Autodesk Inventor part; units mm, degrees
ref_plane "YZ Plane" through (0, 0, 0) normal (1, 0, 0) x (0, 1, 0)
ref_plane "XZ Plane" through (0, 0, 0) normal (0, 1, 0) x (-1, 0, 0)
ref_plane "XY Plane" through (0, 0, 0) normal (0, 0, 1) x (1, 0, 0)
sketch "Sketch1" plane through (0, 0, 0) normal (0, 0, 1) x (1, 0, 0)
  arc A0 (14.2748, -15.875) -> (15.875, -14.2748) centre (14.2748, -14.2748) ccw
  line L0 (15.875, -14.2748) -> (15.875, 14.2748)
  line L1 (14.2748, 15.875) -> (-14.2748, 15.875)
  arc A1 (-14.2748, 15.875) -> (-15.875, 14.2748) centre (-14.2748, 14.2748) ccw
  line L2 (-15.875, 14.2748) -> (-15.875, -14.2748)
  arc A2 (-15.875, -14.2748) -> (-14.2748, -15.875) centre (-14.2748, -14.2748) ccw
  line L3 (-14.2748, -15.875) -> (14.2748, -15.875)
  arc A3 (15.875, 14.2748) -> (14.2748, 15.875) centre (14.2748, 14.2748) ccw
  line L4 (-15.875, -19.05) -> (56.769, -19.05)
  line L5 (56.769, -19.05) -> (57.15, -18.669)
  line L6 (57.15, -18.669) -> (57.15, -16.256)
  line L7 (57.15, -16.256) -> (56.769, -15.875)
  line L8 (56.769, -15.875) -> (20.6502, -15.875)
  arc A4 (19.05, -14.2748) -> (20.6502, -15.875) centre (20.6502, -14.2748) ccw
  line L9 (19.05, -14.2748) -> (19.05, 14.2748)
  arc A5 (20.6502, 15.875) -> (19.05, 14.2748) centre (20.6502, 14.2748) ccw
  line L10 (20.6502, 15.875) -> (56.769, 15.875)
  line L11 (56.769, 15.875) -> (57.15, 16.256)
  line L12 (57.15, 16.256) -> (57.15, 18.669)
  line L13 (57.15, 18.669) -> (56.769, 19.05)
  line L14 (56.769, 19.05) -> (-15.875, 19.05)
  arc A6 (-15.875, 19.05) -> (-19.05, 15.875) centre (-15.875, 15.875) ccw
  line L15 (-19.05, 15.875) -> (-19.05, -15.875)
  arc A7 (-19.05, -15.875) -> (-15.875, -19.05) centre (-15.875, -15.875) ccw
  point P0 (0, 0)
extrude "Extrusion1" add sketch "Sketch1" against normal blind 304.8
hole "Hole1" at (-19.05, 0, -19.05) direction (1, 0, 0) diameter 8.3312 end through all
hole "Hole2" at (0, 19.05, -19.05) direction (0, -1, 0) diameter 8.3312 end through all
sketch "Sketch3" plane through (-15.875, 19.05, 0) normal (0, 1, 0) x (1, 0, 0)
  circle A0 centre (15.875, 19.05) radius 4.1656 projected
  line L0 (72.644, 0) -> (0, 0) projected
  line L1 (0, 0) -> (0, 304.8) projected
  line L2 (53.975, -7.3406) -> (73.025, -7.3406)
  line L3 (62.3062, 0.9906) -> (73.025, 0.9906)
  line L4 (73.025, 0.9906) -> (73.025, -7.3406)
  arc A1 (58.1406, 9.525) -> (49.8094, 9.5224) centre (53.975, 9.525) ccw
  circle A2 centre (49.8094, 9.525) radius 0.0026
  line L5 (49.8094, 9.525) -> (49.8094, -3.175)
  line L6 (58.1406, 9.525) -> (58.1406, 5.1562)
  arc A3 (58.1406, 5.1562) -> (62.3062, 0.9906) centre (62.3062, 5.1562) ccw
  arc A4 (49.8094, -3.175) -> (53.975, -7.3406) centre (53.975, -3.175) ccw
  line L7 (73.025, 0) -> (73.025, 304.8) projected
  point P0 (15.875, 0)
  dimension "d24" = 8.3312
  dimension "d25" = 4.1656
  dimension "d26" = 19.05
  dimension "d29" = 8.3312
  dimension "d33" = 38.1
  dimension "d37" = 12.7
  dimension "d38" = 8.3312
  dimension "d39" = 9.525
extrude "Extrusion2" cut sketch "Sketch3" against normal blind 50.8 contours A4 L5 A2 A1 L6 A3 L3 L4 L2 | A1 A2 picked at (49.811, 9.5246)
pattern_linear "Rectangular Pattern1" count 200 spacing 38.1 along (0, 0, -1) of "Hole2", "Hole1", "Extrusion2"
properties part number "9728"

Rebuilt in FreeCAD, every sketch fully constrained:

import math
import FreeCAD as App
import Part
import Sketcher

V = App.Vector
Q = App.Units.Quantity

doc = App.newDocument("Part")
body = doc.addObject("PartDesign::Body", "Body")

# Sketch on XY plane
sketch1 = body.newObject("Sketcher::SketchObject", "Sketch")
sketch1.AttachmentSupport = (doc.getObject("XY_Plane"), [""])
sketch1.MapMode = "FlatFace"
sketch1.addGeometry([
    Part.ArcOfCircle(Part.Circle(V(-15.9, -15.9, 0), V(0, 0, 1), 3.2), math.radians(180), math.radians(270)),  # 0
    Part.LineSegment(V(-15.9, -19.1, 0), V(56.8, -19.1, 0)),  # 1
    Part.LineSegment(V(56.8, -19.1, 0), V(57.1, -18.7, 0)),  # 2
    Part.LineSegment(V(57.1, -18.7, 0), V(57.1, -16.3, 0)),  # 3
    Part.LineSegment(V(57.1, -16.3, 0), V(56.8, -15.9, 0)),  # 4
    Part.LineSegment(V(56.8, -15.9, 0), V(20.7, -15.9, 0)),  # 5
    Part.ArcOfCircle(Part.Circle(V(20.7, -14.3, 0), V(0, 0, 1), 1.6), math.radians(180), math.radians(270)),  # 6
    Part.LineSegment(V(19.1, -14.3, 0), V(19.1, 14.3, 0)),  # 7
    Part.ArcOfCircle(Part.Circle(V(20.7, 14.3, 0), V(0, 0, 1), 1.6), math.radians(90), math.radians(180)),  # 8
    Part.LineSegment(V(20.7, 15.9, 0), V(56.8, 15.9, 0)),  # 9
    Part.LineSegment(V(56.8, 15.9, 0), V(57.1, 16.3, 0)),  # 10
    Part.LineSegment(V(57.1, 16.3, 0), V(57.1, 18.7, 0)),  # 11
    Part.LineSegment(V(57.1, 18.7, 0), V(56.8, 19.1, 0)),  # 12
    Part.LineSegment(V(56.8, 19.1, 0), V(-15.9, 19.1, 0)),  # 13
    Part.ArcOfCircle(Part.Circle(V(-15.9, 15.9, 0), V(0, 0, 1), 3.2), math.radians(90), math.radians(180)),  # 14
    Part.LineSegment(V(-19.1, 15.9, 0), V(-19.1, -15.9, 0)),  # 15
    Part.ArcOfCircle(Part.Circle(V(14.3, -14.3, 0), V(0, 0, 1), 1.6), math.radians(-90), math.radians(0)),  # 16
    Part.LineSegment(V(14.3, -15.9, 0), V(-14.3, -15.9, 0)),  # 17
    Part.ArcOfCircle(Part.Circle(V(-14.3, -14.3, 0), V(0, 0, 1), 1.6), math.radians(180), math.radians(270)),  # 18
    Part.LineSegment(V(-15.9, -14.3, 0), V(-15.9, 14.3, 0)),  # 19
    Part.ArcOfCircle(Part.Circle(V(-14.3, 14.3, 0), V(0, 0, 1), 1.6), math.radians(90), math.radians(180)),  # 20
    Part.LineSegment(V(-14.3, 15.9, 0), V(14.3, 15.9, 0)),  # 21
    Part.ArcOfCircle(Part.Circle(V(14.3, 14.3, 0), V(0, 0, 1), 1.6), math.radians(0), math.radians(90)),  # 22
    Part.LineSegment(V(15.9, 14.3, 0), V(15.9, -14.3, 0)),  # 23
], False)
sketch1.addConstraint([
    Sketcher.Constraint("Tangent", 0, 2, 1, 1),
    Sketcher.Constraint("Coincident", 1, 2, 2, 1),
    Sketcher.Constraint("Coincident", 2, 2, 3, 1),
    Sketcher.Constraint("Coincident", 3, 2, 4, 1),
    Sketcher.Constraint("Coincident", 4, 2, 5, 1),
    Sketcher.Constraint("Tangent", 5, 2, 6, 2),
    Sketcher.Constraint("Tangent", 6, 1, 7, 1),
    Sketcher.Constraint("Tangent", 7, 2, 8, 2),
    Sketcher.Constraint("Tangent", 8, 1, 9, 1),
    Sketcher.Constraint("Coincident", 9, 2, 10, 1),
    Sketcher.Constraint("Coincident", 10, 2, 11, 1),
    Sketcher.Constraint("Coincident", 11, 2, 12, 1),
    Sketcher.Constraint("Coincident", 12, 2, 13, 1),
    Sketcher.Constraint("Tangent", 13, 2, 14, 1),
    Sketcher.Constraint("Tangent", 14, 2, 15, 1),
    Sketcher.Constraint("Tangent", 15, 2, 0, 1),
    Sketcher.Constraint("Tangent", 16, 1, 17, 1),
    Sketcher.Constraint("Tangent", 17, 2, 18, 2),
    Sketcher.Constraint("Tangent", 18, 1, 19, 1),
    Sketcher.Constraint("Tangent", 19, 2, 20, 2),
    Sketcher.Constraint("Tangent", 20, 1, 21, 1),
    Sketcher.Constraint("Tangent", 21, 2, 22, 2),
    Sketcher.Constraint("Tangent", 22, 1, 23, 1),
    Sketcher.Constraint("Tangent", 23, 2, 16, 2),
    Sketcher.Constraint("Horizontal", 1),
    Sketcher.Constraint("Vertical", 3),
    Sketcher.Constraint("Horizontal", 5),
    Sketcher.Constraint("Vertical", 7),
    Sketcher.Constraint("Horizontal", 9),
    Sketcher.Constraint("Vertical", 11),
    Sketcher.Constraint("Horizontal", 13),
    Sketcher.Constraint("Vertical", 15),
    Sketcher.Constraint("Horizontal", 17),
    Sketcher.Constraint("Vertical", 19),
    Sketcher.Constraint("Horizontal", 21),
    Sketcher.Constraint("Vertical", 23),
    Sketcher.Constraint("Equal", 6, 8),
    Sketcher.Constraint("Equal", 0, 14),
    Sketcher.Constraint("Equal", 8, 16),
    Sketcher.Constraint("Equal", 16, 18),
    Sketcher.Constraint("Equal", 18, 20),
    Sketcher.Constraint("Equal", 20, 22),
    Sketcher.Constraint("Symmetric", 16, 3, 20, 3, -1, 1),
    Sketcher.Constraint("Symmetric", 4, 2, 9, 2, -1),
    Sketcher.Constraint("Symmetric", 3, 2, 10, 2, -1),
    Sketcher.Constraint("Symmetric", 1, 2, 12, 2, -1),
    Sketcher.Constraint("Perpendicular", 2, 4),
    Sketcher.Constraint("Perpendicular", 4, 10),
    Sketcher.Constraint("Perpendicular", 10, 12),
    Sketcher.Constraint("Horizontal", 6, 3, 16, 3),
    Sketcher.Constraint("Horizontal", 0, 3, 4, 2),
    Sketcher.Constraint("Vertical", 1, 2, 4, 2),
    Sketcher.Constraint("Vertical", 13, 2, 18, 1),
    Sketcher.Constraint("Equal", 21, 7),
    Sketcher.Constraint("Radius", 0, Q("0.125 in")),
    Sketcher.Constraint("Radius", 6, Q("0.063 in")),
    Sketcher.Constraint("DistanceX", 1, 1, 1, 2, Q("2.86 in")),
    Sketcher.Constraint("DistanceY", 15, 2, 15, 1, Q("1.25 in")),
    Sketcher.Constraint("DistanceX", 5, 2, 5, 1, Q("1.422 in")),
    Sketcher.Constraint("DistanceY", 3, 1, 3, 2, Q("0.095 in")),
])
pad1 = body.newObject("PartDesign::Pad", "Pad")
pad1.Profile = sketch1
pad1.Length = Q("12 in")
pad1.Reversed = True

# Sketch on YZ plane
sketch2 = body.newObject("Sketcher::SketchObject", "Sketch001")
sketch2.AttachmentSupport = (doc.getObject("YZ_Plane"), [""])
sketch2.MapMode = "FlatFace"
sketch2.AttachmentOffset = App.Placement(V(0, 0, -0.75 * 25.4), App.Rotation())
sketch2.addGeometry(Part.Circle(V(0, -19.1, 0), V(0, 0, 1), 4.2), False)
sketch2.addConstraint([
    Sketcher.Constraint("PointOnObject", 0, 3, -2),
    Sketcher.Constraint("Diameter", 0, Q("0.328 in")),
    Sketcher.Constraint("DistanceY", 0, 3, -1, 1, Q("0.75 in")),
])
doc.recompute()
hole = body.newObject("PartDesign::Hole", "Hole")
hole.Profile = sketch2
hole.ThreadType = "None"
hole.Diameter = Q("0.328 in")
hole.DepthType = "ThroughAll"
hole.Reversed = True

# Sketch on XZ plane
sketch3 = body.newObject("Sketcher::SketchObject", "Sketch002")
sketch3.AttachmentSupport = (doc.getObject("XZ_Plane"), [""])
sketch3.MapMode = "FlatFace"
sketch3.AttachmentOffset = App.Placement(V(0, 0, -0.75 * 25.4), App.Rotation())
sketch3.addGeometry(Part.Circle(V(0, -19.1, 0), V(0, 0, 1), 4.2), False)
sketch3.addConstraint([
    Sketcher.Constraint("PointOnObject", 0, 3, -2),
    Sketcher.Constraint("Diameter", 0, Q("0.328 in")),
    Sketcher.Constraint("DistanceY", 0, 3, -1, 1, Q("0.75 in")),
])
doc.recompute()
hole2 = body.newObject("PartDesign::Hole", "Hole001")
hole2.Profile = sketch3
hole2.ThreadType = "None"
hole2.Diameter = Q("0.328 in")
hole2.DepthType = "ThroughAll"
hole2.Reversed = True

# Sketch on XZ plane
sketch4 = body.newObject("Sketcher::SketchObject", "Sketch003")
sketch4.AttachmentSupport = (doc.getObject("XZ_Plane"), [""])
sketch4.MapMode = "FlatFace"
sketch4.AttachmentOffset = App.Placement(V(0, 0, -0.75 * 25.4), App.Rotation())
sketch4.addGeometry([
    Part.ArcOfCircle(Part.Circle(V(38.1, 3.2, 0), V(0, 0, 1), 4.2), math.radians(90), math.radians(180)),  # 0
    Part.LineSegment(V(38.1, 7.3, 0), V(57.1, 7.3, 0)),  # 1
    Part.LineSegment(V(57.1, 7.3, 0), V(57.1, -1, 0)),  # 2
    Part.LineSegment(V(57.1, -1, 0), V(46.4, -1, 0)),  # 3
    Part.ArcOfCircle(Part.Circle(V(46.4, -5.2, 0), V(0, 0, 1), 4.2), math.radians(90), math.radians(180)),  # 4
    Part.LineSegment(V(42.3, -5.2, 0), V(42.3, -9.5, 0)),  # 5
    Part.ArcOfCircle(Part.Circle(V(38.1, -9.5, 0), V(0, 0, 1), 4.2), math.radians(180), math.radians(360)),  # 6
    Part.LineSegment(V(33.9, -9.5, 0), V(33.9, 3.2, 0)),  # 7
], False)
sketch4.addConstraint([
    Sketcher.Constraint("Tangent", 0, 1, 1, 1),
    Sketcher.Constraint("Coincident", 1, 2, 2, 1),
    Sketcher.Constraint("Coincident", 2, 2, 3, 1),
    Sketcher.Constraint("Tangent", 3, 2, 4, 1),
    Sketcher.Constraint("Tangent", 4, 2, 5, 1),
    Sketcher.Constraint("Tangent", 5, 2, 6, 2),
    Sketcher.Constraint("Coincident", 6, 1, 7, 1),
    Sketcher.Constraint("Tangent", 7, 2, 0, 2),
    Sketcher.Constraint("Horizontal", 1),
    Sketcher.Constraint("Vertical", 2),
    Sketcher.Constraint("Horizontal", 3),
    Sketcher.Constraint("Vertical", 5),
    Sketcher.Constraint("Vertical", 7),
    Sketcher.Constraint("Equal", 0, 4),
    Sketcher.Constraint("Equal", 4, 6),
    Sketcher.Constraint("Radius", 0, Q("0.164 in")),
    Sketcher.Constraint("DistanceX", 1, 1, 1, 2, Q("0.75 in")),
    Sketcher.Constraint("DistanceX", -1, 1, 0, 3, Q("1.5 in")),
    Sketcher.Constraint("DistanceY", 6, 3, 0, 3, Q("0.5 in")),
    Sketcher.Constraint("DistanceY", 2, 2, 2, 1, Q("0.328 in")),
    Sketcher.Constraint("DistanceY", 6, 3, -1, 1, Q("0.375 in")),
    Sketcher.Constraint("DistanceY", 7, 1, 7, 2, Q("0.4999 in")),
])
pocket1 = body.newObject("PartDesign::Pocket", "Pocket")
pocket1.Profile = sketch4
pocket1.Length = Q("2 in")
pocket1.Reversed = True
doc.recompute()

linearpattern = body.newObject("PartDesign::LinearPattern", "LinearPattern")
linearpattern.Originals = [hole2, hole, pocket1]
linearpattern.Direction = (doc.getObject("Z_Axis"), [""])
linearpattern.Mode = "offset"
linearpattern.Offset = Q("1.5 in")
linearpattern.Occurrences = 200
linearpattern.Reversed = True
body.Tip = linearpattern

doc.recompute()
